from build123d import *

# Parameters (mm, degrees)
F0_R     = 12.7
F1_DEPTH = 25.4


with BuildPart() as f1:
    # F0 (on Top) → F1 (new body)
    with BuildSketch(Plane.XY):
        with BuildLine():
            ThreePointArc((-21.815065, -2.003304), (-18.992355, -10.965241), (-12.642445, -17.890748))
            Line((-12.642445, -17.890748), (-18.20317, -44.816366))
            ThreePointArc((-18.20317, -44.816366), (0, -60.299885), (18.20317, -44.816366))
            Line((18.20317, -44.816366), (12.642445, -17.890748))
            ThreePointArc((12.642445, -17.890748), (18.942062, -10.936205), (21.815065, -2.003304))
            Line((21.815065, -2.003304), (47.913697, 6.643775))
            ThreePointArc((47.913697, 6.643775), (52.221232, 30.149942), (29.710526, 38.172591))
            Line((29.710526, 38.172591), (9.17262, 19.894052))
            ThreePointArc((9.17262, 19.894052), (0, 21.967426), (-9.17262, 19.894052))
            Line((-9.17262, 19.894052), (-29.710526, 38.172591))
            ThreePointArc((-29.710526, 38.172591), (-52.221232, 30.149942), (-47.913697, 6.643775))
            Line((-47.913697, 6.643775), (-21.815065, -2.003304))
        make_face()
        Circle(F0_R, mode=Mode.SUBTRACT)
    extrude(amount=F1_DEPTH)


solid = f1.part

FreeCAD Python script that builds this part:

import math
import FreeCAD as App
import Part
import Sketcher

V = App.Vector
Q = App.Units.Quantity

doc = App.newDocument("Part")
body = doc.addObject("PartDesign::Body", "Body")

sketch1 = body.newObject("Sketcher::SketchObject", "Sketch")
sketch1.AttachmentSupport = (doc.getObject("XY_Plane"), [""])
sketch1.MapMode = "FlatFace"
sketch1.addGeometry([
    Part.ArcOfCircle(Part.Circle(V(-0.22024, -0.127156, 0), V(0, 0, 1), 21.676171), math.radians(-175.034637), math.radians(-124.965364)),
    Part.LineSegment(V(-12.642445, -17.890748, 0), V(-18.20317, -44.816366, 0)),
    Part.ArcOfCircle(Part.Circle(V(0, -41.857864, 0), V(0, 0, 1), 18.442021), math.radians(-170.768621), math.radians(-9.231379)),
    Part.LineSegment(V(18.20317, -44.816366, 0), V(12.642445, -17.890748, 0)),
    Part.ArcOfCircle(Part.Circle(V(-0.330061, 0.190561, 0), V(0, 0, 1), 22.253532), math.radians(-54.342303), math.radians(-5.657697)),
    Part.LineSegment(V(21.815065, -2.003304, 0), V(47.913697, 6.643775, 0)),
    Part.ArcOfCircle(Part.Circle(V(36.249973, 20.928931, 0), V(0, 0, 1), 18.442022), math.radians(-50.768617), math.radians(110.768619)),
    Part.LineSegment(V(29.710526, 38.172591, 0), V(9.17262, 19.894052, 0)),
    Part.ArcOfCircle(Part.Circle(V(0, 0.640874, 0), V(0, 0, 1), 21.326552), math.radians(64.525885), math.radians(115.474115)),
    Part.LineSegment(V(-9.17262, 19.894052, 0), V(-29.710526, 38.172591, 0)),
    Part.ArcOfCircle(Part.Circle(V(-36.249973, 20.928931, 0), V(0, 0, 1), 18.442022), math.radians(69.231381), math.radians(230.768617)),
    Part.LineSegment(V(-47.913697, 6.643775, 0), V(-21.815065, -2.003304, 0)),
    Part.Circle(V(0, 0, 0), V(0, 0, 1), 12.7),
], False)
sketch1.addConstraint([
    Sketcher.Constraint("Coincident", 0, 2, 1, 1),
    Sketcher.Constraint("Coincident", 1, 2, 2, 1),
    Sketcher.Constraint("Coincident", 2, 2, 3, 1),
    Sketcher.Constraint("Coincident", 3, 2, 4, 1),
    Sketcher.Constraint("Coincident", 4, 2, 5, 1),
    Sketcher.Constraint("Coincident", 5, 2, 6, 1),
    Sketcher.Constraint("Coincident", 6, 2, 7, 1),
    Sketcher.Constraint("Coincident", 7, 2, 8, 1),
    Sketcher.Constraint("Coincident", 8, 2, 9, 1),
    Sketcher.Constraint("Coincident", 9, 2, 10, 1),
    Sketcher.Constraint("Coincident", 10, 2, 11, 1),
    Sketcher.Constraint("Coincident", 11, 2, 0, 1),
    Sketcher.Constraint("Coincident", 12, 3, -1, 1),
    Sketcher.Constraint("PointOnObject", 2, 3, -2),
    Sketcher.Constraint("PointOnObject", 8, 3, -2),
    Sketcher.Constraint("Diameter", 12, Q("1 in")),
    Sketcher.Constraint("Radius", 0, Q("21.676171 mm")),
    Sketcher.Constraint("Radius", 2, Q("18.442021 mm")),
    Sketcher.Constraint("Radius", 4, Q("22.253532 mm")),
    Sketcher.Constraint("Radius", 6, Q("18.442022 mm")),
    Sketcher.Constraint("Radius", 10, Q("18.442022 mm")),
    Sketcher.Constraint("Radius", 8, Q("21.326552 mm")),
    Sketcher.Constraint("DistanceY", 1, 2, 2, 3, Q("2.958502 mm")),
    Sketcher.Constraint("DistanceY", 2, 2, 2, 3, Q("2.958502 mm")),
    Sketcher.Constraint("DistanceY", 8, 3, 5, 2, Q("6.002901 mm")),
    Sketcher.Constraint("DistanceX", 0, 3, -1, 1, Q("0.22024 mm")),
    Sketcher.Constraint("DistanceX", 4, 3, -1, 1, Q("0.330061 mm")),
    Sketcher.Constraint("DistanceY", -1, 1, 4, 3, Q("0.190561 mm")),
    Sketcher.Constraint("DistanceY", -1, 1, 6, 3, Q("20.928931 mm")),
    Sketcher.Constraint("DistanceY", -1, 1, 10, 3, Q("20.928931 mm")),
    Sketcher.Constraint("DistanceY", -1, 1, 6, 2, Q("38.172591 mm")),
    Sketcher.Constraint("DistanceX", -1, 1, 7, 2, Q("9.17262 mm")),
    Sketcher.Constraint("DistanceY", -1, 1, 7, 2, Q("19.894052 mm")),
    Sketcher.Constraint("DistanceX", 8, 2, -1, 1, Q("9.17262 mm")),
    Sketcher.Constraint("DistanceY", -1, 1, 9, 2, Q("38.172591 mm")),
    Sketcher.Constraint("DistanceY", 2, 3, 0, 3, Q("41.730709 mm")),
    Sketcher.Constraint("DistanceY", 0, 3, 8, 3, Q("0.768029 mm")),
    Sketcher.Constraint("DistanceX", 10, 3, 4, 3, Q("35.919911 mm")),
    Sketcher.Constraint("DistanceY", 0, 2, 4, 3, Q("18.081309 mm")),
    Sketcher.Constraint("DistanceY", 3, 2, 4, 3, Q("18.081309 mm")),
    Sketcher.Constraint("DistanceX", 3, 2, 4, 2, Q("9.17262 mm")),
    Sketcher.Constraint("DistanceX", 3, 2, 5, 2, Q("35.271252 mm")),
    Sketcher.Constraint("DistanceX", 10, 2, 9, 2, Q("18.203171 mm")),
    Sketcher.Constraint("DistanceX", 11, 2, 0, 2, Q("9.17262 mm")),
])
pad1 = body.newObject("PartDesign::Pad", "Pad")
pad1.Profile = sketch1
pad1.Length = Q("1 in")

doc.recompute()
